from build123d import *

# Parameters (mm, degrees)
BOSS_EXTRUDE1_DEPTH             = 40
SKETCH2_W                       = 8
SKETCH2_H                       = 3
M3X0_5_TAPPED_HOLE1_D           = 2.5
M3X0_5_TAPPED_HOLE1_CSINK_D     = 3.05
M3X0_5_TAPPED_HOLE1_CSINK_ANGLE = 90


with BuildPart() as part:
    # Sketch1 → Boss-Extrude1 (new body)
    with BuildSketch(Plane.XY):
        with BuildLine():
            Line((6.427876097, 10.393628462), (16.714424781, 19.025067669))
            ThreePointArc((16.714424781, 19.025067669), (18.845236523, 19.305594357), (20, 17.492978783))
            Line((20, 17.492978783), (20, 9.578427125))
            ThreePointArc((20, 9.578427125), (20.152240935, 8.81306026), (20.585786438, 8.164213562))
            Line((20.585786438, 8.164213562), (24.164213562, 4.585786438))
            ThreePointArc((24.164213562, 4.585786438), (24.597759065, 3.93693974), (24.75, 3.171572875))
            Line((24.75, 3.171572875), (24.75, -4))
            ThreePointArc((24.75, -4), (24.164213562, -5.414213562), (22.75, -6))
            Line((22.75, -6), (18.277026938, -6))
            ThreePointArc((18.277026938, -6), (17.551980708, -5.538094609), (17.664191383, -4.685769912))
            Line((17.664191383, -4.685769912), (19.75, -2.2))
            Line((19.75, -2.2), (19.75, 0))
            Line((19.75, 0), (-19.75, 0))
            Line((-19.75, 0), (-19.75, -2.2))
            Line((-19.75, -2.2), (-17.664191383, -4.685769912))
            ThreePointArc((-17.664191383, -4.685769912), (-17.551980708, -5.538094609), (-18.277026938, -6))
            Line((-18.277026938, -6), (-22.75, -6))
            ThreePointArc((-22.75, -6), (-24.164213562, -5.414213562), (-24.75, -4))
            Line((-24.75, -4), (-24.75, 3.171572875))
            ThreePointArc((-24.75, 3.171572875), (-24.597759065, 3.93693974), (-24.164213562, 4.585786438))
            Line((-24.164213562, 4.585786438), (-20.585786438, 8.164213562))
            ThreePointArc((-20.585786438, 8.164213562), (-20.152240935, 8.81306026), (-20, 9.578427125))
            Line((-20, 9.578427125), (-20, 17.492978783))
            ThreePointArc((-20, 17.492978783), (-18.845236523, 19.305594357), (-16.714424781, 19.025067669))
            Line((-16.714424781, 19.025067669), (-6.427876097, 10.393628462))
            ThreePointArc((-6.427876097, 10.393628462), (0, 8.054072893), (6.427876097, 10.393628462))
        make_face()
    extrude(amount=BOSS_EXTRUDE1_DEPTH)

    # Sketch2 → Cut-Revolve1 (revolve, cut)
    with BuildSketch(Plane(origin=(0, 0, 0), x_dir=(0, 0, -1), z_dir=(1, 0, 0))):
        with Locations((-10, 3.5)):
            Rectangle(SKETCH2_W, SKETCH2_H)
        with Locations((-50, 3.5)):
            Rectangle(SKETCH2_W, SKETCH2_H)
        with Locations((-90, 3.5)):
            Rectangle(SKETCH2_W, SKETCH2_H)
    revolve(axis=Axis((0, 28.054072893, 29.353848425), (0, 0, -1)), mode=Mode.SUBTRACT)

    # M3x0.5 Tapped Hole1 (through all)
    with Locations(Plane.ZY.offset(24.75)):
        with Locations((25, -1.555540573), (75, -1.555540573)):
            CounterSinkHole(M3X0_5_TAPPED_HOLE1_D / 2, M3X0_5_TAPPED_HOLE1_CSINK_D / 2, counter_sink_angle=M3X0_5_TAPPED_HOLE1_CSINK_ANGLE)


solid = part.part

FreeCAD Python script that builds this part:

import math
import FreeCAD as App
import Part
import Sketcher
Q = App.Units.Quantity


def add_polygon(sketch, points):
    """Adds a closed chain of lines whose ends are joined by coincident constraints."""
    first, n = sketch.GeometryCount, len(points)
    for a, b in zip(points, points[1:] + points[:1]):
        sketch.addGeometry(Part.LineSegment(App.Vector(*a, 0), App.Vector(*b, 0)), False)
    for i in range(n):
        sketch.addConstraint(Sketcher.Constraint("Coincident", first + i, 2, first + (i + 1) % n, 1))

doc = App.newDocument("Part")
params = doc.addObject("Spreadsheet::Sheet", "Params")
for row, (alias, value) in enumerate([
    ("sketch1_radius", "10 mm"),
    ("sketch1_radius2", "2 mm"),
    ("sketch1_radius3", "0.8 mm"),
    ("sketch1_width", "39.5 mm"),
    ("sketch1_height", "2.2 mm"),
    ("pad1_length", "40 mm"),
    ("sketch2_width", "3 mm"),
    ("sketch2_height", "8 mm"),
    ("sketch2_height2", "88 mm"),
    ("groove_angle", "360 deg"),
    ("sketch3_diameter", "2.5 mm"),
    ("hole_diameter", "2.5 mm"),
    ("hole_csink_diameter", "3.05 mm"),
], start=1):
    params.set(f"A{row}", alias)
    params.set(f"B{row}", "=" + value)
    params.setAlias(f"B{row}", alias)

body = doc.addObject("PartDesign::Body", "Body")

# Sketch on XY plane
sketch1 = body.newObject("Sketcher::SketchObject", "Sketch")
sketch1.AttachmentSupport = (doc.getObject("XY_Plane"), [""])
sketch1.MapMode = "FlatFace"
sketch1.addGeometry(Part.LineSegment(App.Vector(16.7, 19, 0), App.Vector(6.4, 10.4, 0)), False)
sketch1.addGeometry(Part.ArcOfCircle(Part.Circle(App.Vector(0, 18.1, 0), App.Vector(0, 0, 1), 10), math.radians(-130), math.radians(-50)), False)
sketch1.addGeometry(Part.LineSegment(App.Vector(-6.4, 10.4, 0), App.Vector(-16.7, 19, 0)), False)
sketch1.addGeometry(Part.ArcOfCircle(Part.Circle(App.Vector(-18, 17.5, 0), App.Vector(0, 0, 1), 2), math.radians(50), math.radians(180)), False)
sketch1.addGeometry(Part.LineSegment(App.Vector(-20, 17.5, 0), App.Vector(-20, 9.6, 0)), False)
sketch1.addGeometry(Part.ArcOfCircle(Part.Circle(App.Vector(-22, 9.6, 0), App.Vector(0, 0, 1), 2), math.radians(-45), math.radians(0)), False)
sketch1.addGeometry(Part.LineSegment(App.Vector(-20.6, 8.2, 0), App.Vector(-24.2, 4.6, 0)), False)
sketch1.addGeometry(Part.ArcOfCircle(Part.Circle(App.Vector(-22.8, 3.2, 0), App.Vector(0, 0, 1), 2), math.radians(135), math.radians(180)), False)
sketch1.addGeometry(Part.LineSegment(App.Vector(-24.8, 3.2, 0), App.Vector(-24.8, -4, 0)), False)
sketch1.addGeometry(Part.ArcOfCircle(Part.Circle(App.Vector(-22.7, -4, 0), App.Vector(0, 0, 1), 2), math.radians(-180), math.radians(-90)), False)
sketch1.addGeometry(Part.LineSegment(App.Vector(-22.8, -6, 0), App.Vector(-18.3, -6, 0)), False)
sketch1.addGeometry(Part.ArcOfCircle(Part.Circle(App.Vector(-18.3, -5.2, 0), App.Vector(0, 0, 1), 0.8), math.radians(-90), math.radians(40)), False)
sketch1.addGeometry(Part.LineSegment(App.Vector(-17.7, -4.7, 0), App.Vector(-19.8, -2.2, 0)), False)
sketch1.addGeometry(Part.LineSegment(App.Vector(-19.8, -2.2, 0), App.Vector(-19.8, 0, 0)), False)
sketch1.addGeometry(Part.LineSegment(App.Vector(-19.8, 0, 0), App.Vector(19.8, 0, 0)), False)
sketch1.addGeometry(Part.LineSegment(App.Vector(19.8, 0, 0), App.Vector(19.8, -2.2, 0)), False)
sketch1.addGeometry(Part.LineSegment(App.Vector(19.8, -2.2, 0), App.Vector(17.7, -4.7, 0)), False)
sketch1.addGeometry(Part.ArcOfCircle(Part.Circle(App.Vector(18.3, -5.2, 0), App.Vector(0, 0, 1), 0.8), math.radians(140), math.radians(270)), False)
sketch1.addGeometry(Part.LineSegment(App.Vector(18.3, -6, 0), App.Vector(22.8, -6, 0)), False)
sketch1.addGeometry(Part.ArcOfCircle(Part.Circle(App.Vector(22.7, -4, 0), App.Vector(0, 0, 1), 2), math.radians(-90), math.radians(0)), False)
sketch1.addGeometry(Part.LineSegment(App.Vector(24.8, -4, 0), App.Vector(24.8, 3.2, 0)), False)
sketch1.addGeometry(Part.ArcOfCircle(Part.Circle(App.Vector(22.8, 3.2, 0), App.Vector(0, 0, 1), 2), math.radians(0), math.radians(45)), False)
sketch1.addGeometry(Part.LineSegment(App.Vector(24.2, 4.6, 0), App.Vector(20.6, 8.2, 0)), False)
sketch1.addGeometry(Part.ArcOfCircle(Part.Circle(App.Vector(22, 9.6, 0), App.Vector(0, 0, 1), 2), math.radians(180), math.radians(225)), False)
sketch1.addGeometry(Part.LineSegment(App.Vector(20, 9.6, 0), App.Vector(20, 17.5, 0)), False)
sketch1.addGeometry(Part.ArcOfCircle(Part.Circle(App.Vector(18, 17.5, 0), App.Vector(0, 0, 1), 2), math.radians(0), math.radians(130)), False)
sketch1.addConstraint(Sketcher.Constraint("Tangent", 0, 2, 1, 2))
sketch1.addConstraint(Sketcher.Constraint("Tangent", 1, 1, 2, 1))
sketch1.addConstraint(Sketcher.Constraint("Tangent", 2, 2, 3, 1))
sketch1.addConstraint(Sketcher.Constraint("Tangent", 3, 2, 4, 1))
sketch1.addConstraint(Sketcher.Constraint("Tangent", 4, 2, 5, 2))
sketch1.addConstraint(Sketcher.Constraint("Tangent", 5, 1, 6, 1))
sketch1.addConstraint(Sketcher.Constraint("Tangent", 6, 2, 7, 1))
sketch1.addConstraint(Sketcher.Constraint("Tangent", 7, 2, 8, 1))
sketch1.addConstraint(Sketcher.Constraint("Tangent", 8, 2, 9, 1))
sketch1.addConstraint(Sketcher.Constraint("Tangent", 9, 2, 10, 1))
sketch1.addConstraint(Sketcher.Constraint("Tangent", 10, 2, 11, 1))
sketch1.addConstraint(Sketcher.Constraint("Tangent", 11, 2, 12, 1))
sketch1.addConstraint(Sketcher.Constraint("Coincident", 12, 2, 13, 1))
sketch1.addConstraint(Sketcher.Constraint("Coincident", 13, 2, 14, 1))
sketch1.addConstraint(Sketcher.Constraint("Coincident", 14, 2, 15, 1))
sketch1.addConstraint(Sketcher.Constraint("Coincident", 15, 2, 16, 1))
sketch1.addConstraint(Sketcher.Constraint("Tangent", 16, 2, 17, 1))
sketch1.addConstraint(Sketcher.Constraint("Tangent", 17, 2, 18, 1))
sketch1.addConstraint(Sketcher.Constraint("Tangent", 18, 2, 19, 1))
sketch1.addConstraint(Sketcher.Constraint("Tangent", 19, 2, 20, 1))
sketch1.addConstraint(Sketcher.Constraint("Tangent", 20, 2, 21, 1))
sketch1.addConstraint(Sketcher.Constraint("Tangent", 21, 2, 22, 1))
sketch1.addConstraint(Sketcher.Constraint("Tangent", 22, 2, 23, 2))
sketch1.addConstraint(Sketcher.Constraint("Tangent", 23, 1, 24, 1))
sketch1.addConstraint(Sketcher.Constraint("Tangent", 24, 2, 25, 1))
sketch1.addConstraint(Sketcher.Constraint("Tangent", 25, 2, 0, 1))
sketch1.addConstraint(Sketcher.Constraint("Vertical", 4))
sketch1.addConstraint(Sketcher.Constraint("Vertical", 8))
sketch1.addConstraint(Sketcher.Constraint("Horizontal", 10))
sketch1.addConstraint(Sketcher.Constraint("Vertical", 13))
sketch1.addConstraint(Sketcher.Constraint("Horizontal", 14))
sketch1.addConstraint(Sketcher.Constraint("Vertical", 15))
sketch1.addConstraint(Sketcher.Constraint("Horizontal", 18))
sketch1.addConstraint(Sketcher.Constraint("Vertical", 20))
sketch1.addConstraint(Sketcher.Constraint("Vertical", 24))
sketch1.addConstraint(Sketcher.Constraint("Equal", 3, 5))
sketch1.addConstraint(Sketcher.Constraint("Equal", 5, 7))
sketch1.addConstraint(Sketcher.Constraint("Equal", 7, 9))
sketch1.addConstraint(Sketcher.Constraint("Equal", 11, 17))
sketch1.addConstraint(Sketcher.Constraint("Equal", 9, 19))
sketch1.addConstraint(Sketcher.Constraint("Equal", 19, 21))
sketch1.addConstraint(Sketcher.Constraint("Equal", 21, 23))
sketch1.addConstraint(Sketcher.Constraint("Equal", 23, 25))
sketch1.addConstraint(Sketcher.Constraint("Symmetric", 13, 2, 14, 2, -1, 1))
sketch1.addConstraint(Sketcher.Constraint("Symmetric", 11, 3, 17, 3, -2))
sketch1.addConstraint(Sketcher.Constraint("Symmetric", 7, 3, 21, 3, -2))
sketch1.addConstraint(Sketcher.Constraint("Symmetric", 5, 3, 23, 3, -2))
sketch1.addConstraint(Sketcher.Constraint("Symmetric", 0, 2, 1, 1, -2))
sketch1.addConstraint(Sketcher.Constraint("Perpendicular", 0, 12))
sketch1.addConstraint(Sketcher.Constraint("Perpendicular", 2, 16))
sketch1.addConstraint(Sketcher.Constraint("Perpendicular", 6, 22))
sketch1.addConstraint(Sketcher.Constraint("Radius", 1, 10.0))
sketch1.addConstraint(Sketcher.Constraint("Radius", 3, 2.0))
sketch1.addConstraint(Sketcher.Constraint("Radius", 11, 0.8))
sketch1.addConstraint(Sketcher.Constraint("Angle", 0, Q("-140 deg")))
sketch1.addConstraint(Sketcher.Constraint("DistanceX", 14, 1, 14, 2, 39.5))
sketch1.addConstraint(Sketcher.Constraint("DistanceY", 13, 1, 13, 2, 2.2))
sketch1.addConstraint(Sketcher.Constraint("DistanceX", 3, 3, -1, 1, 18.0))
sketch1.addConstraint(Sketcher.Constraint("DistanceY", 9, 3, -1, 1, 4.0))
sketch1.addConstraint(Sketcher.Constraint("DistanceX", 9, 3, 12, 2, 3.0))
sketch1.addConstraint(Sketcher.Constraint("DistanceY", 4, 2, 4, 1, 7.914552))
sketch1.addConstraint(Sketcher.Constraint("DistanceY", 8, 2, 8, 1, 7.171573))
sketch1.setExpression("Constraints[51]", "Params.sketch1_radius")
sketch1.setExpression("Constraints[52]", "Params.sketch1_radius2")
sketch1.setExpression("Constraints[53]", "Params.sketch1_radius3")
sketch1.setExpression("Constraints[55]", "Params.sketch1_width")
sketch1.setExpression("Constraints[56]", "Params.sketch1_height")
pad1 = body.newObject("PartDesign::Pad", "Pad")
pad1.Profile = sketch1
pad1.setExpression("Length", "Params.pad1_length")

# Sketch on YZ plane
sketch2 = body.newObject("Sketcher::SketchObject", "Sketch001")
sketch2.AttachmentSupport = (doc.getObject("YZ_Plane"), [""])
sketch2.MapMode = "FlatFace"
add_polygon(sketch2, [(5, 14), (2, 14), (2, 6), (5, 6)])  # lines 0-3
add_polygon(sketch2, [(5, 54), (2, 54), (2, 46), (5, 46)])  # lines 4-7
add_polygon(sketch2, [(5, 94), (2, 94), (2, 86), (5, 86)])  # lines 8-11
sketch2.addGeometry(Part.LineSegment(App.Vector(28.1, 94, 0), App.Vector(28.1, 6, 0)), True)  # axis
sketch2.addConstraint(Sketcher.Constraint("Horizontal", 0))
sketch2.addConstraint(Sketcher.Constraint("Vertical", 1))
sketch2.addConstraint(Sketcher.Constraint("Horizontal", 2))
sketch2.addConstraint(Sketcher.Constraint("Vertical", 3))
sketch2.addConstraint(Sketcher.Constraint("Horizontal", 4))
sketch2.addConstraint(Sketcher.Constraint("Vertical", 5))
sketch2.addConstraint(Sketcher.Constraint("Horizontal", 6))
sketch2.addConstraint(Sketcher.Constraint("Vertical", 7))
sketch2.addConstraint(Sketcher.Constraint("Horizontal", 8))
sketch2.addConstraint(Sketcher.Constraint("Vertical", 9))
sketch2.addConstraint(Sketcher.Constraint("Horizontal", 10))
sketch2.addConstraint(Sketcher.Constraint("Vertical", 11))
sketch2.addConstraint(Sketcher.Constraint("Vertical", 12))
sketch2.addConstraint(Sketcher.Constraint("Horizontal", 11, 2, 12, 1))
sketch2.addConstraint(Sketcher.Constraint("Horizontal", 2, 2, 12, 2))
sketch2.addConstraint(Sketcher.Constraint("Vertical", 1, 2, 4, 2))
sketch2.addConstraint(Sketcher.Constraint("Vertical", 3, 2, 6, 2))
sketch2.addConstraint(Sketcher.Constraint("Vertical", 5, 2, 8, 2))
sketch2.addConstraint(Sketcher.Constraint("Vertical", 7, 2, 10, 2))
sketch2.addConstraint(Sketcher.Constraint("Equal", 3, 5))
sketch2.addConstraint(Sketcher.Constraint("Equal", 7, 9))
sketch2.addConstraint(Sketcher.Constraint("DistanceX", 0, 2, 0, 1, 3.0))
sketch2.addConstraint(Sketcher.Constraint("DistanceY", 1, 2, 1, 1, 8.0))
sketch2.addConstraint(Sketcher.Constraint("DistanceY", 12, 2, 12, 1, 88.0))
sketch2.addConstraint(Sketcher.Constraint("DistanceX", -1, 1, 0, 2, 2.0))
sketch2.addConstraint(Sketcher.Constraint("DistanceY", -1, 1, 0, 2, 14.0))
sketch2.addConstraint(Sketcher.Constraint("DistanceY", -1, 1, 4, 2, 54.0))
sketch2.addConstraint(Sketcher.Constraint("DistanceX", -1, 1, 12, 1, 28.054073))
sketch2.setExpression("Constraints[33]", "Params.sketch2_width")
sketch2.setExpression("Constraints[34]", "Params.sketch2_height")
sketch2.setExpression("Constraints[35]", "Params.sketch2_height2")
groove = body.newObject("PartDesign::Groove", "Groove")
groove.Profile = sketch2
groove.ReferenceAxis = (sketch2, ["Axis0"])
groove.setExpression("Angle", "Params.groove_angle")

# Sketch on YZ plane
sketch3 = body.newObject("Sketcher::SketchObject", "Sketch002")
sketch3.AttachmentSupport = (doc.getObject("YZ_Plane"), [""])
sketch3.MapMode = "FlatFace"
sketch3.AttachmentOffset = App.Placement(App.Vector(0, 0, -24.75), App.Rotation())
sketch3.addGeometry(Part.Circle(App.Vector(-1.6, 25, 0), App.Vector(0, 0, 1), 1.2), False)
sketch3.addGeometry(Part.Circle(App.Vector(-1.6, 75, 0), App.Vector(0, 0, 1), 1.2), False)
sketch3.addConstraint(Sketcher.Constraint("Equal", 0, 1))
sketch3.addConstraint(Sketcher.Constraint("Vertical", 0, 3, 1, 3))
sketch3.addConstraint(Sketcher.Constraint("Diameter", 0, 2.5))
sketch3.addConstraint(Sketcher.Constraint("DistanceY", -1, 1, 0, 3, 25.0))
sketch3.addConstraint(Sketcher.Constraint("DistanceY", -1, 1, 1, 3, 75.0))
sketch3.addConstraint(Sketcher.Constraint("DistanceX", 0, 3, -1, 1, 1.555541))
sketch3.setExpression("Constraints[2]", "Params.sketch3_diameter")
doc.recompute()
hole = body.newObject("PartDesign::Hole", "Hole")
hole.Profile = sketch3
hole.ThreadType = "None"
hole.setExpression("Diameter", "Params.hole_diameter")
hole.DepthType = "ThroughAll"
hole.HoleCutType = "Countersink"
hole.setExpression("HoleCutDiameter", "Params.hole_csink_diameter")
hole.HoleCutCountersinkAngle = 90
hole.Reversed = True

doc.recompute()
